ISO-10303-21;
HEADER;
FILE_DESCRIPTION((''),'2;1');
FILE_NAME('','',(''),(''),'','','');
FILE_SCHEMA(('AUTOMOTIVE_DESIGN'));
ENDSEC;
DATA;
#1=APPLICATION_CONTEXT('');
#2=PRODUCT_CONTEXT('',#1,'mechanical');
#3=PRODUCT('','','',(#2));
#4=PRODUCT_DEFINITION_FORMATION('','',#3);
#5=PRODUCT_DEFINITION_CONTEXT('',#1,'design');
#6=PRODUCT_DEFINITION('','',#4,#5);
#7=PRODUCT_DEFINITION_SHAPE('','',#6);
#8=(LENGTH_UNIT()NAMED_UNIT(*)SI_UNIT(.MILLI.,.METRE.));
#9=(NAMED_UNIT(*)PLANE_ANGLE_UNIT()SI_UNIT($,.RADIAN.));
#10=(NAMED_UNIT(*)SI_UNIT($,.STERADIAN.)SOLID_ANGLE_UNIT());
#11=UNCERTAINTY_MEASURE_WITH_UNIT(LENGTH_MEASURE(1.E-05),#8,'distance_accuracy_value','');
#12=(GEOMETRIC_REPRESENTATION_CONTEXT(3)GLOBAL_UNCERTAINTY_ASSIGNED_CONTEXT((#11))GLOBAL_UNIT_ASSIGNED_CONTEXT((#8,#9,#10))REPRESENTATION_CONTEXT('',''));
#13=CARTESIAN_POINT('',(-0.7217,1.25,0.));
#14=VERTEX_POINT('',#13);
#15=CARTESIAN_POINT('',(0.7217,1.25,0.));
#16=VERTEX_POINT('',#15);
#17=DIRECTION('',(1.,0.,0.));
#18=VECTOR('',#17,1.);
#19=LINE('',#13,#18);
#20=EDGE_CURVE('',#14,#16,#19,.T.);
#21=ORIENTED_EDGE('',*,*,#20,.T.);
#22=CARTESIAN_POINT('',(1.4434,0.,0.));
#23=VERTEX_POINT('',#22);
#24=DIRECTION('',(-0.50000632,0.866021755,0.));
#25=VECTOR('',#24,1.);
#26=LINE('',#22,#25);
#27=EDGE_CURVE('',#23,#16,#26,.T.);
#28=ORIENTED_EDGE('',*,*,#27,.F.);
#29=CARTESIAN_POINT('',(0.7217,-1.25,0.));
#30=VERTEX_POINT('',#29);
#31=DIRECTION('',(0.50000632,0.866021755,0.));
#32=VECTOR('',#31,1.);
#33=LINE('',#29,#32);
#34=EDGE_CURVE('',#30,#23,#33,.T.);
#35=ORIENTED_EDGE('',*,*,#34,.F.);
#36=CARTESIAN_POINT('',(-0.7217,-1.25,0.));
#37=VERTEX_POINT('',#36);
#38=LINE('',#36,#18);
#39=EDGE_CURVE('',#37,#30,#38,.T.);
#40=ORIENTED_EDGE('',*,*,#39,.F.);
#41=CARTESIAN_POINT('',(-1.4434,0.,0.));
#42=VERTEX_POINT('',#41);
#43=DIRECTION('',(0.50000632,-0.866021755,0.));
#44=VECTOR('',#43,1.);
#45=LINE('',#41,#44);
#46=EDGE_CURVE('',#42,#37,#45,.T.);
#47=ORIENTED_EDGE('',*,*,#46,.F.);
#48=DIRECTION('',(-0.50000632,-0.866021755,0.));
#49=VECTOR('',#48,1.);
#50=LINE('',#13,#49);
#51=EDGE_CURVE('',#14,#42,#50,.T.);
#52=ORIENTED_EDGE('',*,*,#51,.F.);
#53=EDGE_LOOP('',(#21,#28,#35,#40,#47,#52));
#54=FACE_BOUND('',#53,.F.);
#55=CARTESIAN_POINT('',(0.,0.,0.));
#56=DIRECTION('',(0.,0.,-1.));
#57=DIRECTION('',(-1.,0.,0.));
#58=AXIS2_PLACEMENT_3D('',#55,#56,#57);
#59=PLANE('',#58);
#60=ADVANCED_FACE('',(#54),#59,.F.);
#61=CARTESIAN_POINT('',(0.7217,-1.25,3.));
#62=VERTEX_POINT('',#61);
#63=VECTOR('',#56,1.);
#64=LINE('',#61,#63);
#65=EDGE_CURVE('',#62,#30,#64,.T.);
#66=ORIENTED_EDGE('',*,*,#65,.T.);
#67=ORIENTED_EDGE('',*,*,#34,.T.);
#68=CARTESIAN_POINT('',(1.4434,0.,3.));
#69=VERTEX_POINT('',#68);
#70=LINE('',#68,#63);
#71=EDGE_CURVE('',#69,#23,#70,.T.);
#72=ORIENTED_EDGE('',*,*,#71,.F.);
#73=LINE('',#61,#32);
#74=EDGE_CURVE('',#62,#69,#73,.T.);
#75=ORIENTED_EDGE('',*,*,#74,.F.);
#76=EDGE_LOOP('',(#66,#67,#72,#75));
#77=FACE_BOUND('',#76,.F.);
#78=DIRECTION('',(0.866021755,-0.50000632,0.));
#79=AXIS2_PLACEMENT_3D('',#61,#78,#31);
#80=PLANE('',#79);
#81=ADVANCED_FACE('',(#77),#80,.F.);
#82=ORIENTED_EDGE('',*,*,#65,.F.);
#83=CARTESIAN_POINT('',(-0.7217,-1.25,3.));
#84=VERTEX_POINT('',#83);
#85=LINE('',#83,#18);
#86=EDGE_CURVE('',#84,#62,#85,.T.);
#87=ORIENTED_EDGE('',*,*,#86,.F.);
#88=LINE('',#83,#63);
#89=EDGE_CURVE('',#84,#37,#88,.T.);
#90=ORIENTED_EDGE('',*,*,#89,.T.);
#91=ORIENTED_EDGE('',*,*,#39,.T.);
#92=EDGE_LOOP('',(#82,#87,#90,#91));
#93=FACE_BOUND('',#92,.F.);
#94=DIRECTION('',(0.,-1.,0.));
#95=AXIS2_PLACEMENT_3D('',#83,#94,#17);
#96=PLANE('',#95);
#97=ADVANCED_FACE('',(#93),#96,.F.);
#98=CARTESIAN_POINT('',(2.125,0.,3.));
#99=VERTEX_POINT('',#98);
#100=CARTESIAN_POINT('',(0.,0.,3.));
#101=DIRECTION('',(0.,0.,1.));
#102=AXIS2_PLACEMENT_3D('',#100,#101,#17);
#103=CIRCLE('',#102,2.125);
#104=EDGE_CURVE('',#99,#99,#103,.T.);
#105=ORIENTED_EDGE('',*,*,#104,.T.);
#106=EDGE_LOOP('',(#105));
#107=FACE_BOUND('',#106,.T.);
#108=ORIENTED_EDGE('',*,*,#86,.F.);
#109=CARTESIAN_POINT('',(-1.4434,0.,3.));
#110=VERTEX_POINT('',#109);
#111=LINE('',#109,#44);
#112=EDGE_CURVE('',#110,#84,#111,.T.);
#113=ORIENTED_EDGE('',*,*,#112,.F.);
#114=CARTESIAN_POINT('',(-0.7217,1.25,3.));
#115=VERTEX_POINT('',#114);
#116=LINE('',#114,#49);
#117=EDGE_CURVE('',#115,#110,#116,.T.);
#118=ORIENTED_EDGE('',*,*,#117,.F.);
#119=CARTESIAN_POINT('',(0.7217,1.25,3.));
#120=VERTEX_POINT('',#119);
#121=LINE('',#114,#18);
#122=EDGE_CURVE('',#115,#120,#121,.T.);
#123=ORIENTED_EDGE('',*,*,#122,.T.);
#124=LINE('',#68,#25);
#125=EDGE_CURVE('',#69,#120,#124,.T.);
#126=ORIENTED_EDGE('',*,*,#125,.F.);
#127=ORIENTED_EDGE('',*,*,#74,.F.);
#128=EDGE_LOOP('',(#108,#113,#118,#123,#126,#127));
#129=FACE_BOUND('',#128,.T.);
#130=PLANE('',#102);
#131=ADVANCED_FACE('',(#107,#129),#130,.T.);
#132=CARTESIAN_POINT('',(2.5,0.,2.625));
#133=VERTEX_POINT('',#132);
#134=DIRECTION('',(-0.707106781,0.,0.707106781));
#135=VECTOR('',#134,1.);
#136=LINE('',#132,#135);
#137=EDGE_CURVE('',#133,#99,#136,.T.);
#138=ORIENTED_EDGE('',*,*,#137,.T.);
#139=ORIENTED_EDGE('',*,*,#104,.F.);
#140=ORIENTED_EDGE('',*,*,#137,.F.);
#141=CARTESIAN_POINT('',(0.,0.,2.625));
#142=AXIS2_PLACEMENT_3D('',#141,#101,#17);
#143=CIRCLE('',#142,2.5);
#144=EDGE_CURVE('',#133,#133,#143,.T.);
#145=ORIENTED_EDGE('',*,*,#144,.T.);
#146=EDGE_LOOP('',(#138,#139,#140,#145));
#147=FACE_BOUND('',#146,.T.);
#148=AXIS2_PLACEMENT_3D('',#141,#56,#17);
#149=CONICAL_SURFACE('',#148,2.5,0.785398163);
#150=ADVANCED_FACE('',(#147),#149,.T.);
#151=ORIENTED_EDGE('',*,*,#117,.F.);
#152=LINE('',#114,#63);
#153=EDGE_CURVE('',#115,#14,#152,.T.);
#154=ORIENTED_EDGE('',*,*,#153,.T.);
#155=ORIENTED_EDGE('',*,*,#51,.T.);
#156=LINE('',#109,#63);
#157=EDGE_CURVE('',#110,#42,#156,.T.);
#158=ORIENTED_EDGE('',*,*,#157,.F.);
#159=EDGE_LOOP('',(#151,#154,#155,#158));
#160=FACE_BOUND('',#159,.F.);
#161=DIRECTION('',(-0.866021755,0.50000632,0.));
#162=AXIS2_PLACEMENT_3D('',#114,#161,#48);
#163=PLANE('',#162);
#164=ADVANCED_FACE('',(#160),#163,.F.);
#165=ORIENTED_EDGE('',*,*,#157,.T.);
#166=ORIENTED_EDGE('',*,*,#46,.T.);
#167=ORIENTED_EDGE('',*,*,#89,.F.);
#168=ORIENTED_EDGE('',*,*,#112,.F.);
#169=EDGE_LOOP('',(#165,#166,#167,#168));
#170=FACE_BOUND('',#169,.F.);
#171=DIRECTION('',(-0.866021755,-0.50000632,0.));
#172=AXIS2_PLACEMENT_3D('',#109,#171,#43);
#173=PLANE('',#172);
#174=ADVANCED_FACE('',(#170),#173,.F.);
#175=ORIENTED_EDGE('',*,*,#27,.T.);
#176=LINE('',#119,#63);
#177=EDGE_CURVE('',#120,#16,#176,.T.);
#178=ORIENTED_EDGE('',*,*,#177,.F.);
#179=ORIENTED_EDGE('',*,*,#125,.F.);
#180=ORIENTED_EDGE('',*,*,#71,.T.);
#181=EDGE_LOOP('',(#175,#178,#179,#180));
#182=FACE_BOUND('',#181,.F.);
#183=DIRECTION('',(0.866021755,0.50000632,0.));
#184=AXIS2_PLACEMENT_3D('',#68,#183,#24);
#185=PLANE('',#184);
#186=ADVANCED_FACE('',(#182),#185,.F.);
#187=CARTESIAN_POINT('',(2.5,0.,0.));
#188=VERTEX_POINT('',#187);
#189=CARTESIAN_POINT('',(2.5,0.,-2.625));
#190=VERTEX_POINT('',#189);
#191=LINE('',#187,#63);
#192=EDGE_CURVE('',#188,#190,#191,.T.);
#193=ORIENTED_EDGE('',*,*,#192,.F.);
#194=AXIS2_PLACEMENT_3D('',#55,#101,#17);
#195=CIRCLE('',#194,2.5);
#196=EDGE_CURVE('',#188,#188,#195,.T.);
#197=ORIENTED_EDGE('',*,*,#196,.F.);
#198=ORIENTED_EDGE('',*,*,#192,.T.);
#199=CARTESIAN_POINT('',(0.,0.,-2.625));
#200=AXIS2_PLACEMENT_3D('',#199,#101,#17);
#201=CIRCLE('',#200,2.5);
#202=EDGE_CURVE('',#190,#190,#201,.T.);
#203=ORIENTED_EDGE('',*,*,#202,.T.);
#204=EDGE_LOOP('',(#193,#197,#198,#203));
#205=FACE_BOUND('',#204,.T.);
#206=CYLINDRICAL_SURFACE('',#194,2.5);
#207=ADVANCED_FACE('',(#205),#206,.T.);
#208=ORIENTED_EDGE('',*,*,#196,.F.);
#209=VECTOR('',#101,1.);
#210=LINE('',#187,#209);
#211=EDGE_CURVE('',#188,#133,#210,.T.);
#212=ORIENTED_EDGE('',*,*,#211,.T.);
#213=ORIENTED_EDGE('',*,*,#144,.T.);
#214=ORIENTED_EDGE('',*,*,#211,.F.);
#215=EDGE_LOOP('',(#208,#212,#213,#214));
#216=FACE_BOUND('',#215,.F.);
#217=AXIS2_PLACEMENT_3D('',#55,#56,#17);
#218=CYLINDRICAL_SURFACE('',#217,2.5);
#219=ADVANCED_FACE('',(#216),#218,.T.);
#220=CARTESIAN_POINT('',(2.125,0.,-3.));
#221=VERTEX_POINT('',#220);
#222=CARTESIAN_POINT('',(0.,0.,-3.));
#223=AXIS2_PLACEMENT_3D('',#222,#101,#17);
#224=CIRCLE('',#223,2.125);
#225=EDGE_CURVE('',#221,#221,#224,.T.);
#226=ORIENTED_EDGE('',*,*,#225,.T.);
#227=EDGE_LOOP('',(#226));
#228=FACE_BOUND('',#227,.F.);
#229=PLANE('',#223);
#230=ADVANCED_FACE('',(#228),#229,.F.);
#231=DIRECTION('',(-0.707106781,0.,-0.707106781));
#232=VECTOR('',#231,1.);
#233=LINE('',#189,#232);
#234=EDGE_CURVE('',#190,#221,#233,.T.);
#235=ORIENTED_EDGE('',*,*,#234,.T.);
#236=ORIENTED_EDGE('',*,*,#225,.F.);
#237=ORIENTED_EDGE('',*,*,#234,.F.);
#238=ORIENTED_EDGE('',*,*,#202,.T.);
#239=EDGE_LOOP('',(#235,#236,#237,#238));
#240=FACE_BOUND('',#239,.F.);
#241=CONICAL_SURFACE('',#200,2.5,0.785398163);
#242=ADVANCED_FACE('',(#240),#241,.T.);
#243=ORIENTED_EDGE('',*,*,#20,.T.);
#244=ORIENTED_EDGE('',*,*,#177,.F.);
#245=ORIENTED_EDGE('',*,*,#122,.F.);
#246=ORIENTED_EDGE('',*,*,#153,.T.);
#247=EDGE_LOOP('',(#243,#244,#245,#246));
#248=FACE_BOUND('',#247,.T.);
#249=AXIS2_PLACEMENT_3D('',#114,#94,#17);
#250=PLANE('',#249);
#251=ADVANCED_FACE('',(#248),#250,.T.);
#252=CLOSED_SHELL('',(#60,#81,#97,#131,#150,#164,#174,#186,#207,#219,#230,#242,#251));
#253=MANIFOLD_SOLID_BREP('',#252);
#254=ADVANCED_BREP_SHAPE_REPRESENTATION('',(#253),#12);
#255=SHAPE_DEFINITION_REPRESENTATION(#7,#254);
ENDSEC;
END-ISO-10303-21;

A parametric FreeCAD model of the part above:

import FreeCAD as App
import Part
import Sketcher

V = App.Vector
Q = App.Units.Quantity


def edges_at(feature, points):
    """Names of the edges that pass closest to the given points."""
    edges = feature.Shape.Edges
    near = lambda p: min(range(len(edges)), key=lambda i: edges[i].distToShape(Part.Vertex(*p))[0])
    return sorted({f"Edge{near(p) + 1}" for p in points})

doc = App.newDocument("Part")
params = doc.addObject("Spreadsheet::Sheet", "Params")
for row, (alias, value) in enumerate([
    ("sketch1_diameter", "5 mm"),
    ("pad1_length", "6 mm"),
    ("chamfer_size", "0.375 mm"),
    ("pocket1_length", "3 mm"),
], start=1):
    params.set(f"A{row}", alias)
    params.set(f"B{row}", "=" + value)
    params.setAlias(f"B{row}", alias)

body = doc.addObject("PartDesign::Body", "Body")

# Sketch on XY plane
sketch1 = doc.addObject("Sketcher::SketchObject", "Sketch")
body.addObject(sketch1)
sketch1.AttachmentSupport = (doc.XY_Plane, [""])
sketch1.MapMode = "FlatFace"
sketch1.addGeometry(Part.Circle(V(0, 0, 0), V(0, 0, 1), 2.5), False)
sketch1.addConstraint([
    Sketcher.Constraint("Coincident", 0, 3, -1, 1),
    Sketcher.Constraint("Diameter", 0, Q("5 mm")),
])
sketch1.setExpression("Constraints[1]", "Params.sketch1_diameter")
pad1 = doc.addObject("PartDesign::Pad", "Pad")
body.addObject(pad1)
pad1.Profile = sketch1
pad1.setExpression("Length", "Params.pad1_length")
pad1.Midplane = True
doc.recompute()

chamfer = doc.addObject("PartDesign::Chamfer", "Chamfer")
body.addObject(chamfer)
chamfer.Base = (pad1, edges_at(pad1, [(-2.5, 0, -3), (-2.5, 0, 3)]))
chamfer.setExpression("Size", "Params.chamfer_size")

# Sketch on XY plane
sketch2 = doc.addObject("Sketcher::SketchObject", "Sketch001")
body.addObject(sketch2)
sketch2.AttachmentSupport = (doc.XY_Plane, [""])
sketch2.MapMode = "FlatFace"
sketch2.AttachmentOffset = App.Placement(V(0, 0, 3), App.Rotation())
sketch2.addGeometry([
    Part.LineSegment(V(0.7, 1.2, 0), V(-0.7, 1.2, 0)),  # 0
    Part.LineSegment(V(-0.7, 1.2, 0), V(-1.4, 0, 0)),  # 1
    Part.LineSegment(V(-1.4, 0, 0), V(-0.7, -1.2, 0)),  # 2
    Part.LineSegment(V(-0.7, -1.2, 0), V(0.7, -1.2, 0)),  # 3
    Part.LineSegment(V(0.7, -1.2, 0), V(1.4, 0, 0)),  # 4
    Part.LineSegment(V(1.4, 0, 0), V(0.7, 1.2, 0)),  # 5
], False)
sketch2.addConstraint([
    Sketcher.Constraint("Coincident", 0, 2, 1, 1),
    Sketcher.Constraint("Coincident", 1, 2, 2, 1),
    Sketcher.Constraint("Coincident", 2, 2, 3, 1),
    Sketcher.Constraint("Coincident", 3, 2, 4, 1),
    Sketcher.Constraint("Coincident", 4, 2, 5, 1),
    Sketcher.Constraint("Coincident", 5, 2, 0, 1),
    Sketcher.Constraint("Horizontal", 0),
    Sketcher.Constraint("Horizontal", 3),
    Sketcher.Constraint("Symmetric", 0, 2, 3, 2, -1, 1),
    Sketcher.Constraint("Symmetric", 1, 2, 4, 2, -1, 1),
    Sketcher.Constraint("PointOnObject", 1, 2, -1),
    Sketcher.Constraint("Parallel", 2, 5),
    Sketcher.Constraint("Vertical", 0, 2, 2, 2),
    Sketcher.Constraint("Angle", 1, Q("-120.0004 deg")),
    Sketcher.Constraint("DistanceY", 2, 2, 0, 2, Q("2.5 mm")),
    Sketcher.Constraint("DistanceX", 0, 2, 0, 1, Q("1.4434 mm")),
])
pocket1 = doc.addObject("PartDesign::Pocket", "Pocket")
body.addObject(pocket1)
pocket1.Profile = sketch2
pocket1.setExpression("Length", "Params.pocket1_length")

doc.recompute()
